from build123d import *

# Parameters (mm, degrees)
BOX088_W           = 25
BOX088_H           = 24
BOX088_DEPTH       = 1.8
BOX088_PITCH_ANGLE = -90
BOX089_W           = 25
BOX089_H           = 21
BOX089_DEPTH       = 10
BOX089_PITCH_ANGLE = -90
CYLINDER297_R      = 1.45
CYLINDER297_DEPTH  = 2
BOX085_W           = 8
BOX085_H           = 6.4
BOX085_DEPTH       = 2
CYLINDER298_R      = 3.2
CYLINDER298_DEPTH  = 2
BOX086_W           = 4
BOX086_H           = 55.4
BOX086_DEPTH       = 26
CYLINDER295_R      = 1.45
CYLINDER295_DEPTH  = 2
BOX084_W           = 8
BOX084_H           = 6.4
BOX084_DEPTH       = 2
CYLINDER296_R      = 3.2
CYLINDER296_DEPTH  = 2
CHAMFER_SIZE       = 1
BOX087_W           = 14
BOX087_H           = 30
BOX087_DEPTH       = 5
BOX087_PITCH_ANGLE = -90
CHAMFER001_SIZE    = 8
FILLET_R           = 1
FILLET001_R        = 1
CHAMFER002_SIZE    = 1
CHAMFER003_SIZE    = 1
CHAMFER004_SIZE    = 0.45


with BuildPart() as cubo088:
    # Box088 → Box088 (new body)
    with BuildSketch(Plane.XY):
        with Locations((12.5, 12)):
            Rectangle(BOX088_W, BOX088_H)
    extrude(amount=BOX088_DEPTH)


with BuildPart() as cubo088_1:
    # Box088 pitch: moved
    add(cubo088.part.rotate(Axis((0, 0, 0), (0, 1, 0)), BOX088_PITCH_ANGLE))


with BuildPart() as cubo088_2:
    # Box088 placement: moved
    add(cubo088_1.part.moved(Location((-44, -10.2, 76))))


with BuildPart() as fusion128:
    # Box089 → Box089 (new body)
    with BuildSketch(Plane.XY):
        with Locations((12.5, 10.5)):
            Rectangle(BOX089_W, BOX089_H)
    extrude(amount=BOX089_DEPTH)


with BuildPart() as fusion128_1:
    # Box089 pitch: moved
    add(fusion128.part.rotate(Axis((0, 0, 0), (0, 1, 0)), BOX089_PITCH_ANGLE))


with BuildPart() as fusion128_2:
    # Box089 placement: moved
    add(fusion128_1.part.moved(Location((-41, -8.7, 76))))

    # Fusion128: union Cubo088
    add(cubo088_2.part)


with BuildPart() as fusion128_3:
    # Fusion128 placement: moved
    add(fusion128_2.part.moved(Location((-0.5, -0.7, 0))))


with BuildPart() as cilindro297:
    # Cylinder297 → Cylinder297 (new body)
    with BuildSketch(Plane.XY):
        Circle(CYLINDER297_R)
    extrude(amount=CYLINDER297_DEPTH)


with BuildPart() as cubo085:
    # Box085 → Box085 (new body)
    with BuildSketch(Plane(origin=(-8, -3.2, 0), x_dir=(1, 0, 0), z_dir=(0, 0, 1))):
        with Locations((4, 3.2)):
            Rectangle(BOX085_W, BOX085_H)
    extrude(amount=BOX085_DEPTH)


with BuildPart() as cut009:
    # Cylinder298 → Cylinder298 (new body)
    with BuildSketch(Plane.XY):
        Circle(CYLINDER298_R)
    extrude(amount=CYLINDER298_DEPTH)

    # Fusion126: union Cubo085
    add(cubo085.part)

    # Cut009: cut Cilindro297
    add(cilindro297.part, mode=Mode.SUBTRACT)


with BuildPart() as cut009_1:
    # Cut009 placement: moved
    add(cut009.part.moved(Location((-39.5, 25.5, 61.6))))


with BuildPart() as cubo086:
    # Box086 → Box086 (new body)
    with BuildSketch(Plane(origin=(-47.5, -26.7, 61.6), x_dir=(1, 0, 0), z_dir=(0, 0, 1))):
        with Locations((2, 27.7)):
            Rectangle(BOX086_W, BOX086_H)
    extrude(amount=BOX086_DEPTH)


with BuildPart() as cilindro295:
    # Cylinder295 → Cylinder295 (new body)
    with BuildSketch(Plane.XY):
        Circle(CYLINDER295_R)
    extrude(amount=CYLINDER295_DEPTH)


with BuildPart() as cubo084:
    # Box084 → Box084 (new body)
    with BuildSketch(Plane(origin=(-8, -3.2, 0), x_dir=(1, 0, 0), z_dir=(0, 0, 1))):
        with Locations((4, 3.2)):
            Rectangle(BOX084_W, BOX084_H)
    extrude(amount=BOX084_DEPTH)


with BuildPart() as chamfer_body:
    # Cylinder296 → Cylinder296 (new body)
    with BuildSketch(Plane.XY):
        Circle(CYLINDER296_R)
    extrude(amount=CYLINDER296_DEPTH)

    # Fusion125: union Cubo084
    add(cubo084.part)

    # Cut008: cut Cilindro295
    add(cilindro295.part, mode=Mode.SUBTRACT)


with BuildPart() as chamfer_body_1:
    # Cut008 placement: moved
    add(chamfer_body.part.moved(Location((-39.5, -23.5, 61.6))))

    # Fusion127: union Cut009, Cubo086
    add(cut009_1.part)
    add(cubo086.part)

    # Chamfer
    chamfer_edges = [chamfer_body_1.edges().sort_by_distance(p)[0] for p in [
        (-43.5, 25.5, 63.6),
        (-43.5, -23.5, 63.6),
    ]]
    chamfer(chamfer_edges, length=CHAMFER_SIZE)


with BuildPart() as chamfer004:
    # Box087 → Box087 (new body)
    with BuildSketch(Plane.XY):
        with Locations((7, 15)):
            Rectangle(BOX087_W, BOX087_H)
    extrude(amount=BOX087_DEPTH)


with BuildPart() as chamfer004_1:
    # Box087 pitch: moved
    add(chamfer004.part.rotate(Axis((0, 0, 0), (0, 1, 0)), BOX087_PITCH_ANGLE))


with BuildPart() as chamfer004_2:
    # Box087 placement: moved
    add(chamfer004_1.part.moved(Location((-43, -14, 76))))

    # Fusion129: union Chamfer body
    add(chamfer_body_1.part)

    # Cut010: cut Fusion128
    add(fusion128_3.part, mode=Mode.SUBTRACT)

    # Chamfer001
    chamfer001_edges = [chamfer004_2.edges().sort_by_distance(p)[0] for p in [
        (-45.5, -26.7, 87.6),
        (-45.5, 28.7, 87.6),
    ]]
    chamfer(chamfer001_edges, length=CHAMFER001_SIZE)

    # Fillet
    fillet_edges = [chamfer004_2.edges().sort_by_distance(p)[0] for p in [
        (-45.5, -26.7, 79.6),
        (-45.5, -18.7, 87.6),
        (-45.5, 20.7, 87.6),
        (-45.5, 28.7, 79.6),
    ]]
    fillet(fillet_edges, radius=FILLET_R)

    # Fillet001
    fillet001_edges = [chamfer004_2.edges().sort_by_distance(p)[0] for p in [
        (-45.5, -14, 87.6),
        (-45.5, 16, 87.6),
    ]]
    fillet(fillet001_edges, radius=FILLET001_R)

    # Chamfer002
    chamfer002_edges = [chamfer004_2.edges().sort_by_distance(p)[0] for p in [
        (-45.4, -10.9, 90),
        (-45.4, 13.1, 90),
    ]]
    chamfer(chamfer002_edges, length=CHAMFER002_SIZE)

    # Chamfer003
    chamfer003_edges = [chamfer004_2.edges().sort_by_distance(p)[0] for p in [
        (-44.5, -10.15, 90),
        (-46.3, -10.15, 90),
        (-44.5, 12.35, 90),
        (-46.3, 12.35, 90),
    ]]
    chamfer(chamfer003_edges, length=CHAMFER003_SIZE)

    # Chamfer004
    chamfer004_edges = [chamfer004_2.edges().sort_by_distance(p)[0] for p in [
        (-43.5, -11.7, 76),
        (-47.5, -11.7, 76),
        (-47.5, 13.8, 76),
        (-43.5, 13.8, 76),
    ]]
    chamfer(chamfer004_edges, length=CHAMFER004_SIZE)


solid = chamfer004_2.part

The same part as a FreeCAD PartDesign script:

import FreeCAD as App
import Part
import Sketcher
from FreeCAD import Vector


def edges_at(feature, points):
    """Names of the edges that pass closest to the given points."""
    edges = feature.Shape.Edges
    near = lambda p: min(range(len(edges)), key=lambda i: edges[i].distToShape(Part.Vertex(*p))[0])
    return sorted({f"Edge{near(p) + 1}" for p in points})

doc = App.newDocument("Part")
body = doc.addObject("PartDesign::Body", "Body")

# Sketch on XY plane
sketch1 = doc.addObject("Sketcher::SketchObject", "Sketch")
body.addObject(sketch1)
sketch1.AttachmentSupport = (doc.XY_Plane, [""])
sketch1.MapMode = "FlatFace"
sketch1.addGeometry([
    Part.LineSegment(Vector(0, 24, 0), Vector(0, 0, 0)),
    Part.LineSegment(Vector(0, 0, 0), Vector(25, 0, 0)),
    Part.LineSegment(Vector(25, 0, 0), Vector(25, 24, 0)),
    Part.LineSegment(Vector(25, 24, 0), Vector(0, 24, 0)),
], False)
sketch1.addConstraint([
    Sketcher.Constraint("Coincident", 0, 2, 1, 1),
    Sketcher.Constraint("Coincident", 1, 2, 2, 1),
    Sketcher.Constraint("Coincident", 2, 2, 3, 1),
    Sketcher.Constraint("Coincident", 3, 2, 0, 1),
    Sketcher.Constraint("Vertical", 0),
    Sketcher.Constraint("Horizontal", 1),
    Sketcher.Constraint("Vertical", 2),
    Sketcher.Constraint("Horizontal", 3),
    Sketcher.Constraint("Coincident", 0, 2, -1, 1),
    Sketcher.Constraint("DistanceX", 1, 1, 1, 2, 25.0),
    Sketcher.Constraint("DistanceY", 0, 2, 0, 1, 24.0),
])
pad1 = doc.addObject("PartDesign::Pad", "Pad")
body.addObject(pad1)
pad1.Profile = sketch1
pad1.Length = 1.8
body2 = doc.addObject("PartDesign::Body", "Body001")
doc.recompute()

body.Placement = App.Placement(Vector(0, 0, 0), App.Rotation(Vector(0, 1, 0), 270))
boolean = doc.addObject("PartDesign::Boolean", "Boolean")
body2.addObject(boolean)
boolean.Type = "Fuse"
boolean.addObjects([body])
body3 = doc.addObject("PartDesign::Body", "Body002")
doc.recompute()

body2.Placement = App.Placement(Vector(-44, -10.2, 76), App.Rotation(Vector(0, 0, 1), 0))
boolean2 = doc.addObject("PartDesign::Boolean", "Boolean001")
body3.addObject(boolean2)
boolean2.Type = "Fuse"
boolean2.addObjects([body2])
body4 = doc.addObject("PartDesign::Body", "Body003")

# Sketch on XY plane
sketch2 = doc.addObject("Sketcher::SketchObject", "Sketch001")
body4.addObject(sketch2)
sketch2.AttachmentSupport = (doc.getObject("XY_Plane003"), [""])
sketch2.MapMode = "FlatFace"
sketch2.addGeometry([
    Part.LineSegment(Vector(0, 21, 0), Vector(0, 0, 0)),
    Part.LineSegment(Vector(0, 0, 0), Vector(25, 0, 0)),
    Part.LineSegment(Vector(25, 0, 0), Vector(25, 21, 0)),
    Part.LineSegment(Vector(25, 21, 0), Vector(0, 21, 0)),
], False)
sketch2.addConstraint([
    Sketcher.Constraint("Coincident", 0, 2, 1, 1),
    Sketcher.Constraint("Coincident", 1, 2, 2, 1),
    Sketcher.Constraint("Coincident", 2, 2, 3, 1),
    Sketcher.Constraint("Coincident", 3, 2, 0, 1),
    Sketcher.Constraint("Vertical", 0),
    Sketcher.Constraint("Horizontal", 1),
    Sketcher.Constraint("Vertical", 2),
    Sketcher.Constraint("Horizontal", 3),
    Sketcher.Constraint("Coincident", 0, 2, -1, 1),
    Sketcher.Constraint("DistanceX", 1, 1, 1, 2, 25.0),
    Sketcher.Constraint("DistanceY", 0, 2, 0, 1, 21.0),
])
pad2 = doc.addObject("PartDesign::Pad", "Pad001")
body4.addObject(pad2)
pad2.Profile = sketch2
pad2.Length = 10
body5 = doc.addObject("PartDesign::Body", "Body004")
doc.recompute()

body4.Placement = App.Placement(Vector(0, 0, 0), App.Rotation(Vector(0, 1, 0), 270))
boolean3 = doc.addObject("PartDesign::Boolean", "Boolean002")
body5.addObject(boolean3)
boolean3.Type = "Fuse"
boolean3.addObjects([body4])
body6 = doc.addObject("PartDesign::Body", "Body005")
doc.recompute()

body5.Placement = App.Placement(Vector(-41, -8.7, 76), App.Rotation(Vector(0, 0, 1), 0))
boolean4 = doc.addObject("PartDesign::Boolean", "Boolean003")
body6.addObject(boolean4)
boolean4.Type = "Fuse"
boolean4.addObjects([body5])
doc.recompute()

boolean5 = doc.addObject("PartDesign::Boolean", "Boolean004")
body6.addObject(boolean5)
boolean5.Type = "Fuse"
boolean5.addObjects([body3])
body7 = doc.addObject("PartDesign::Body", "Body006")
doc.recompute()

body6.Placement = App.Placement(Vector(-0.5, -0.7, 0), App.Rotation(Vector(0, 0, 1), 0))
boolean6 = doc.addObject("PartDesign::Boolean", "Boolean005")
body7.addObject(boolean6)
boolean6.Type = "Fuse"
boolean6.addObjects([body6])
body8 = doc.addObject("PartDesign::Body", "Body007")

# Sketch on XY plane
sketch3 = doc.addObject("Sketcher::SketchObject", "Sketch002")
body8.addObject(sketch3)
sketch3.AttachmentSupport = (doc.getObject("XY_Plane007"), [""])
sketch3.MapMode = "FlatFace"
sketch3.addGeometry(Part.Circle(Vector(0, 0, 0), Vector(0, 0, 1), 1.4), False)
sketch3.addConstraint([
    Sketcher.Constraint("Coincident", 0, 3, -1, 1),
    Sketcher.Constraint("Diameter", 0, 2.9),
])
pad3 = doc.addObject("PartDesign::Pad", "Pad002")
body8.addObject(pad3)
pad3.Profile = sketch3
pad3.Length = 2
body9 = doc.addObject("PartDesign::Body", "Body008")

# Sketch on XY plane
sketch4 = doc.addObject("Sketcher::SketchObject", "Sketch003")
body9.addObject(sketch4)
sketch4.AttachmentSupport = (doc.getObject("XY_Plane008"), [""])
sketch4.MapMode = "FlatFace"
sketch4.addGeometry([
    Part.LineSegment(Vector(-8, 3, 0), Vector(-8, -3, 0)),
    Part.LineSegment(Vector(-8, -3, 0), Vector(0, -3, 0)),
    Part.LineSegment(Vector(0, -3, 0), Vector(0, 3, 0)),
    Part.LineSegment(Vector(0, 3, 0), Vector(-8, 3, 0)),
], False)
sketch4.addConstraint([
    Sketcher.Constraint("Coincident", 0, 2, 1, 1),
    Sketcher.Constraint("Coincident", 1, 2, 2, 1),
    Sketcher.Constraint("Coincident", 2, 2, 3, 1),
    Sketcher.Constraint("Coincident", 3, 2, 0, 1),
    Sketcher.Constraint("Vertical", 0),
    Sketcher.Constraint("Horizontal", 1),
    Sketcher.Constraint("Vertical", 2),
    Sketcher.Constraint("Horizontal", 3),
    Sketcher.Constraint("Symmetric", 1, 2, 2, 2, -1, 1),
    Sketcher.Constraint("DistanceX", 1, 1, 1, 2, 8.0),
    Sketcher.Constraint("DistanceY", 0, 2, 0, 1, 6.4),
])
pad4 = doc.addObject("PartDesign::Pad", "Pad003")
body9.addObject(pad4)
pad4.Profile = sketch4
pad4.Length = 2
body10 = doc.addObject("PartDesign::Body", "Body009")

# Sketch on XY plane
sketch5 = doc.addObject("Sketcher::SketchObject", "Sketch004")
body10.addObject(sketch5)
sketch5.AttachmentSupport = (doc.getObject("XY_Plane009"), [""])
sketch5.MapMode = "FlatFace"
sketch5.addGeometry(Part.Circle(Vector(0, 0, 0), Vector(0, 0, 1), 3.2), False)
sketch5.addConstraint([
    Sketcher.Constraint("Coincident", 0, 3, -1, 1),
    Sketcher.Constraint("Diameter", 0, 6.4),
])
pad5 = doc.addObject("PartDesign::Pad", "Pad004")
body10.addObject(pad5)
pad5.Profile = sketch5
pad5.Length = 2
doc.recompute()

boolean7 = doc.addObject("PartDesign::Boolean", "Boolean006")
body10.addObject(boolean7)
boolean7.Type = "Fuse"
boolean7.addObjects([body9])
doc.recompute()

boolean8 = doc.addObject("PartDesign::Boolean", "Boolean007")
body10.addObject(boolean8)
boolean8.Type = "Cut"
boolean8.addObjects([body8])
body11 = doc.addObject("PartDesign::Body", "Body010")
doc.recompute()

body10.Placement = App.Placement(Vector(-39.5, 25.5, 61.6), App.Rotation(Vector(0, 0, 1), 0))
boolean9 = doc.addObject("PartDesign::Boolean", "Boolean008")
body11.addObject(boolean9)
boolean9.Type = "Fuse"
boolean9.addObjects([body10])
body12 = doc.addObject("PartDesign::Body", "Body011")

# Sketch on XY plane
sketch6 = doc.addObject("Sketcher::SketchObject", "Sketch005")
body12.addObject(sketch6)
sketch6.AttachmentSupport = (doc.getObject("XY_Plane011"), [""])
sketch6.MapMode = "FlatFace"
sketch6.AttachmentOffset = App.Placement(Vector(0, 0, 61.6), App.Rotation())
sketch6.addGeometry([
    Part.LineSegment(Vector(-47.5, 28.7, 0), Vector(-47.5, -26.7, 0)),
    Part.LineSegment(Vector(-47.5, -26.7, 0), Vector(-43.5, -26.7, 0)),
    Part.LineSegment(Vector(-43.5, -26.7, 0), Vector(-43.5, 28.7, 0)),
    Part.LineSegment(Vector(-43.5, 28.7, 0), Vector(-47.5, 28.7, 0)),
], False)
sketch6.addConstraint([
    Sketcher.Constraint("Coincident", 0, 2, 1, 1),
    Sketcher.Constraint("Coincident", 1, 2, 2, 1),
    Sketcher.Constraint("Coincident", 2, 2, 3, 1),
    Sketcher.Constraint("Coincident", 3, 2, 0, 1),
    Sketcher.Constraint("Vertical", 0),
    Sketcher.Constraint("Horizontal", 1),
    Sketcher.Constraint("Vertical", 2),
    Sketcher.Constraint("Horizontal", 3),
    Sketcher.Constraint("DistanceX", 1, 1, 1, 2, 4.0),
    Sketcher.Constraint("DistanceY", 0, 2, 0, 1, 55.4),
    Sketcher.Constraint("DistanceX", 0, 2, -1, 1, 47.5),
    Sketcher.Constraint("DistanceY", 0, 2, -1, 1, 26.7),
])
pad6 = doc.addObject("PartDesign::Pad", "Pad005")
body12.addObject(pad6)
pad6.Profile = sketch6
pad6.Length = 26
body13 = doc.addObject("PartDesign::Body", "Body012")

# Sketch on XY plane
sketch7 = doc.addObject("Sketcher::SketchObject", "Sketch006")
body13.addObject(sketch7)
sketch7.AttachmentSupport = (doc.getObject("XY_Plane012"), [""])
sketch7.MapMode = "FlatFace"
sketch7.addGeometry(Part.Circle(Vector(0, 0, 0), Vector(0, 0, 1), 1.4), False)
sketch7.addConstraint([
    Sketcher.Constraint("Coincident", 0, 3, -1, 1),
    Sketcher.Constraint("Diameter", 0, 2.9),
])
pad7 = doc.addObject("PartDesign::Pad", "Pad006")
body13.addObject(pad7)
pad7.Profile = sketch7
pad7.Length = 2
body14 = doc.addObject("PartDesign::Body", "Body013")

# Sketch on XY plane
sketch8 = doc.addObject("Sketcher::SketchObject", "Sketch007")
body14.addObject(sketch8)
sketch8.AttachmentSupport = (doc.getObject("XY_Plane013"), [""])
sketch8.MapMode = "FlatFace"
sketch8.addGeometry([
    Part.LineSegment(Vector(-8, 3, 0), Vector(-8, -3, 0)),
    Part.LineSegment(Vector(-8, -3, 0), Vector(0, -3, 0)),
    Part.LineSegment(Vector(0, -3, 0), Vector(0, 3, 0)),
    Part.LineSegment(Vector(0, 3, 0), Vector(-8, 3, 0)),
], False)
sketch8.addConstraint([
    Sketcher.Constraint("Coincident", 0, 2, 1, 1),
    Sketcher.Constraint("Coincident", 1, 2, 2, 1),
    Sketcher.Constraint("Coincident", 2, 2, 3, 1),
    Sketcher.Constraint("Coincident", 3, 2, 0, 1),
    Sketcher.Constraint("Vertical", 0),
    Sketcher.Constraint("Horizontal", 1),
    Sketcher.Constraint("Vertical", 2),
    Sketcher.Constraint("Horizontal", 3),
    Sketcher.Constraint("Symmetric", 1, 2, 2, 2, -1, 1),
    Sketcher.Constraint("DistanceX", 1, 1, 1, 2, 8.0),
    Sketcher.Constraint("DistanceY", 0, 2, 0, 1, 6.4),
])
pad8 = doc.addObject("PartDesign::Pad", "Pad007")
body14.addObject(pad8)
pad8.Profile = sketch8
pad8.Length = 2
body15 = doc.addObject("PartDesign::Body", "Body014")

# Sketch on XY plane
sketch9 = doc.addObject("Sketcher::SketchObject", "Sketch008")
body15.addObject(sketch9)
sketch9.AttachmentSupport = (doc.getObject("XY_Plane014"), [""])
sketch9.MapMode = "FlatFace"
sketch9.addGeometry(Part.Circle(Vector(0, 0, 0), Vector(0, 0, 1), 3.2), False)
sketch9.addConstraint([
    Sketcher.Constraint("Coincident", 0, 3, -1, 1),
    Sketcher.Constraint("Diameter", 0, 6.4),
])
pad9 = doc.addObject("PartDesign::Pad", "Pad008")
body15.addObject(pad9)
pad9.Profile = sketch9
pad9.Length = 2
doc.recompute()

boolean10 = doc.addObject("PartDesign::Boolean", "Boolean009")
body15.addObject(boolean10)
boolean10.Type = "Fuse"
boolean10.addObjects([body14])
doc.recompute()

boolean11 = doc.addObject("PartDesign::Boolean", "Boolean010")
body15.addObject(boolean11)
boolean11.Type = "Cut"
boolean11.addObjects([body13])
body16 = doc.addObject("PartDesign::Body", "Body015")
body16.AllowCompound = True
doc.recompute()

body15.Placement = App.Placement(Vector(-39.5, -23.5, 61.6), App.Rotation(Vector(0, 0, 1), 0))
boolean12 = doc.addObject("PartDesign::Boolean", "Boolean011")
body16.addObject(boolean12)
boolean12.Type = "Fuse"
boolean12.addObjects([body15])
doc.recompute()

boolean13 = doc.addObject("PartDesign::Boolean", "Boolean012")
body16.addObject(boolean13)
boolean13.Type = "Fuse"
boolean13.addObjects([body11])
doc.recompute()

boolean14 = doc.addObject("PartDesign::Boolean", "Boolean013")
body16.addObject(boolean14)
boolean14.Type = "Fuse"
boolean14.addObjects([body12])
doc.recompute()

chamfer = doc.addObject("PartDesign::Chamfer", "Chamfer")
body16.addObject(chamfer)
chamfer.Base = (boolean14, edges_at(boolean14, [(-43.5, 25.5, 63.6), (-43.5, -23.5, 63.6)]))
chamfer.Size = 1
body17 = doc.addObject("PartDesign::Body", "Body016")

# Sketch on XY plane
sketch10 = doc.addObject("Sketcher::SketchObject", "Sketch009")
body17.addObject(sketch10)
sketch10.AttachmentSupport = (doc.getObject("XY_Plane016"), [""])
sketch10.MapMode = "FlatFace"
sketch10.addGeometry([
    Part.LineSegment(Vector(0, 30, 0), Vector(0, 0, 0)),
    Part.LineSegment(Vector(0, 0, 0), Vector(14, 0, 0)),
    Part.LineSegment(Vector(14, 0, 0), Vector(14, 30, 0)),
    Part.LineSegment(Vector(14, 30, 0), Vector(0, 30, 0)),
], False)
sketch10.addConstraint([
    Sketcher.Constraint("Coincident", 0, 2, 1, 1),
    Sketcher.Constraint("Coincident", 1, 2, 2, 1),
    Sketcher.Constraint("Coincident", 2, 2, 3, 1),
    Sketcher.Constraint("Coincident", 3, 2, 0, 1),
    Sketcher.Constraint("Vertical", 0),
    Sketcher.Constraint("Horizontal", 1),
    Sketcher.Constraint("Vertical", 2),
    Sketcher.Constraint("Horizontal", 3),
    Sketcher.Constraint("Coincident", 0, 2, -1, 1),
    Sketcher.Constraint("DistanceX", 1, 1, 1, 2, 14.0),
    Sketcher.Constraint("DistanceY", 0, 2, 0, 1, 30.0),
])
pad10 = doc.addObject("PartDesign::Pad", "Pad009")
body17.addObject(pad10)
pad10.Profile = sketch10
pad10.Length = 5
body18 = doc.addObject("PartDesign::Body", "Body017")
doc.recompute()

body17.Placement = App.Placement(Vector(0, 0, 0), App.Rotation(Vector(0, 1, 0), 270))
boolean15 = doc.addObject("PartDesign::Boolean", "Boolean014")
body18.addObject(boolean15)
boolean15.Type = "Fuse"
boolean15.addObjects([body17])
body19 = doc.addObject("PartDesign::Body", "Body018")
doc.recompute()

body18.Placement = App.Placement(Vector(-43, -14, 76), App.Rotation(Vector(0, 0, 1), 0))
boolean16 = doc.addObject("PartDesign::Boolean", "Boolean015")
body19.addObject(boolean16)
boolean16.Type = "Fuse"
boolean16.addObjects([body18])
doc.recompute()

boolean17 = doc.addObject("PartDesign::Boolean", "Boolean016")
body19.addObject(boolean17)
boolean17.Type = "Fuse"
boolean17.addObjects([body16])
doc.recompute()

boolean18 = doc.addObject("PartDesign::Boolean", "Boolean017")
body19.addObject(boolean18)
boolean18.Type = "Cut"
boolean18.addObjects([body7])
doc.recompute()

chamfer2 = doc.addObject("PartDesign::Chamfer", "Chamfer001")
body19.addObject(chamfer2)
chamfer2.Base = (boolean18, edges_at(boolean18, [(-45.5, -26.7, 87.6), (-45.5, 28.7, 87.6)]))
chamfer2.Size = 8
doc.recompute()

fillet = doc.addObject("PartDesign::Fillet", "Fillet")
body19.addObject(fillet)
fillet.Base = (chamfer2, edges_at(chamfer2, [
    (-45.5, -26.7, 79.6),
    (-45.5, -18.7, 87.6),
    (-45.5, 20.7, 87.6),
    (-45.5, 28.7, 79.6),
]))
fillet.Radius = 1
doc.recompute()

fillet2 = doc.addObject("PartDesign::Fillet", "Fillet001")
body19.addObject(fillet2)
fillet2.Base = (fillet, edges_at(fillet, [(-45.5, -14, 87.6), (-45.5, 16, 87.6)]))
fillet2.Radius = 1
doc.recompute()

chamfer3 = doc.addObject("PartDesign::Chamfer", "Chamfer002")
body19.addObject(chamfer3)
chamfer3.Base = (fillet2, edges_at(fillet2, [(-45.4, -10.9, 90), (-45.4, 13.1, 90)]))
chamfer3.Size = 1
doc.recompute()

chamfer4 = doc.addObject("PartDesign::Chamfer", "Chamfer003")
body19.addObject(chamfer4)
chamfer4.Base = (chamfer3, edges_at(chamfer3, [
    (-44.5, -10.65, 90),
    (-46.3, -10.65, 90),
    (-44.5, 12.85, 90),
    (-46.3, 12.85, 90),
]))
chamfer4.Size = 1
doc.recompute()

chamfer5 = doc.addObject("PartDesign::Chamfer", "Chamfer004")
body19.addObject(chamfer5)
chamfer5.Base = (chamfer4, edges_at(chamfer4, [
    (-43.5, -11.7, 76),
    (-47.5, -11.7, 76),
    (-47.5, 13.8, 76),
    (-43.5, 13.8, 76),
]))
chamfer5.Size = 0.45

doc.recompute()
